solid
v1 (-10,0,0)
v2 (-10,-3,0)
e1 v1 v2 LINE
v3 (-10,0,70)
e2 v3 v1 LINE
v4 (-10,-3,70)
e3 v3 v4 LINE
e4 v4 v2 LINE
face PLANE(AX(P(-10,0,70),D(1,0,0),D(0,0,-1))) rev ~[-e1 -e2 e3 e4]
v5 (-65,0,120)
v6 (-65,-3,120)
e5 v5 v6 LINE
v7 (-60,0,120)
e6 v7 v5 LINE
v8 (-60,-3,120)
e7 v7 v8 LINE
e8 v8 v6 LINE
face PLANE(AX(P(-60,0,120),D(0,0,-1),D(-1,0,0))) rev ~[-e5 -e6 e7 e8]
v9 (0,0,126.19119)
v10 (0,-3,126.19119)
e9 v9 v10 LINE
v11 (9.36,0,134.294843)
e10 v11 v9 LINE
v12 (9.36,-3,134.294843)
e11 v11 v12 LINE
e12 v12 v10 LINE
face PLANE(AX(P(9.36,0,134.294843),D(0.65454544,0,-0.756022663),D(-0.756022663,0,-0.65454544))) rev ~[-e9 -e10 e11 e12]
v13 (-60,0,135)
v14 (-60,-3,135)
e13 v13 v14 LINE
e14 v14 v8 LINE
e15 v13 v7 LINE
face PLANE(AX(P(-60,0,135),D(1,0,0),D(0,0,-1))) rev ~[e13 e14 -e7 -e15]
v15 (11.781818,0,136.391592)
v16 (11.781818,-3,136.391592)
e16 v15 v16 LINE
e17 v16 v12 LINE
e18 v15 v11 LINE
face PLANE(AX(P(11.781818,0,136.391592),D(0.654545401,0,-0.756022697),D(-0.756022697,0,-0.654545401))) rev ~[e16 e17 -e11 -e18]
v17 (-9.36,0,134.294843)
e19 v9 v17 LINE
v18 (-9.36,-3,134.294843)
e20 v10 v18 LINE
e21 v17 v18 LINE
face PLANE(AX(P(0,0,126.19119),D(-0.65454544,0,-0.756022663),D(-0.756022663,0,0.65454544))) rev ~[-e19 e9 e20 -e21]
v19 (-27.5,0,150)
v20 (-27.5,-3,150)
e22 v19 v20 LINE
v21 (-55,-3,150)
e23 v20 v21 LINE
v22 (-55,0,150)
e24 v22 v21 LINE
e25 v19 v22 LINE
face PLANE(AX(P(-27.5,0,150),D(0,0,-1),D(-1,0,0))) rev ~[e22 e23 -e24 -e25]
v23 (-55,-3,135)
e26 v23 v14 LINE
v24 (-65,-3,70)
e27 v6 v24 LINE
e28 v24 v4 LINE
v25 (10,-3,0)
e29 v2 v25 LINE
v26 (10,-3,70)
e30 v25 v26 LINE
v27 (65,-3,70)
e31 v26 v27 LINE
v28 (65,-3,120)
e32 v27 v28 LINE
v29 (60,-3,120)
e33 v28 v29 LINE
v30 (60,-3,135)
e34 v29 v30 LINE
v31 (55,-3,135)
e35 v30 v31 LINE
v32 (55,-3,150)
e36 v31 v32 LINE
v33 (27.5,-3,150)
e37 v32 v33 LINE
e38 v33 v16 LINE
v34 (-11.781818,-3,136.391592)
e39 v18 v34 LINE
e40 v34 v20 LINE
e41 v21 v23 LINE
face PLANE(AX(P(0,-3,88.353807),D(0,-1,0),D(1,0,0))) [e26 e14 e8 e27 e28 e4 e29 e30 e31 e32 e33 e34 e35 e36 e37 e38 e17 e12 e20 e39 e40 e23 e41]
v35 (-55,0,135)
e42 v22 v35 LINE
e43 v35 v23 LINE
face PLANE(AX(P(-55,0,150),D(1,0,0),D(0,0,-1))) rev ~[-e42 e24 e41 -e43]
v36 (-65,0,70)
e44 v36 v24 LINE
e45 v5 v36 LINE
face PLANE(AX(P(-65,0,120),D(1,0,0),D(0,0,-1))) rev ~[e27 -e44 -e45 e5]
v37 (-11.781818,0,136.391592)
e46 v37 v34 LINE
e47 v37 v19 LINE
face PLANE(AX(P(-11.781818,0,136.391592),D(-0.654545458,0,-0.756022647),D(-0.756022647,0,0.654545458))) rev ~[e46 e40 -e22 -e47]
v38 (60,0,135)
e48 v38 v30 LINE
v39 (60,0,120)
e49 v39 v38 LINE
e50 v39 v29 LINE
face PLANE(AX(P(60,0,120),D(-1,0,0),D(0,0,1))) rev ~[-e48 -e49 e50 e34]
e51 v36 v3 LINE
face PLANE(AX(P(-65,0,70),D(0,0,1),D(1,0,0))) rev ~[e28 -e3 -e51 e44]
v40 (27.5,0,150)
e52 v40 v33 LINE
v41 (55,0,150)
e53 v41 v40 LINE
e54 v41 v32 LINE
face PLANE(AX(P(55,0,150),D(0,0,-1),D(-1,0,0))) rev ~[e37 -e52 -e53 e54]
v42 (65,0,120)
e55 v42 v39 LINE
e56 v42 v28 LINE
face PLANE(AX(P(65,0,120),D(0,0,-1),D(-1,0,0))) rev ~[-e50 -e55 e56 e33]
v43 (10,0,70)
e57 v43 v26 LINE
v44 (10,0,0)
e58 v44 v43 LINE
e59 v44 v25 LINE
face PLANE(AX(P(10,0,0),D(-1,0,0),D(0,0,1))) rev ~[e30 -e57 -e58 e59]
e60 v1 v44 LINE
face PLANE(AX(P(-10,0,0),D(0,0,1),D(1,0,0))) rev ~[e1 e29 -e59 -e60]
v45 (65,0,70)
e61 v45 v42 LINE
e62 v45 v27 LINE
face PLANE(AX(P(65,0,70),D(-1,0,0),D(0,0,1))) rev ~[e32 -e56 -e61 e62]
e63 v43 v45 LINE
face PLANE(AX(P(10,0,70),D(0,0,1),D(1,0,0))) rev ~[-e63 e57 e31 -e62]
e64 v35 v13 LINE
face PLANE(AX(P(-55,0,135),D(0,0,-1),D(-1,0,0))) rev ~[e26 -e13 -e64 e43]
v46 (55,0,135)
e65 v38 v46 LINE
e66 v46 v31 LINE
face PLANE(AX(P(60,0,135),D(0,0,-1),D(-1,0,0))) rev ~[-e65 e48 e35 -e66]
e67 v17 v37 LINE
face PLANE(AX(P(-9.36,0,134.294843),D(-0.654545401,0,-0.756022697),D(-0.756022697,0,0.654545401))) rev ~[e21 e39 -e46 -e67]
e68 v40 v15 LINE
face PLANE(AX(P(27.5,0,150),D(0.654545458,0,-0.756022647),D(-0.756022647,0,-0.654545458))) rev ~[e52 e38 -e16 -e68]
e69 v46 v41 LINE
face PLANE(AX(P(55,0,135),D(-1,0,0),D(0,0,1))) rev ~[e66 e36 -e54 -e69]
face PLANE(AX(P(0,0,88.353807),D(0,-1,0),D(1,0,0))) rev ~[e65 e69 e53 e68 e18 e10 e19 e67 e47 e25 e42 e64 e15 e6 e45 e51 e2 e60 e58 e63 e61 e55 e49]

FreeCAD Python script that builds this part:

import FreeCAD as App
import Part
import Sketcher

V = App.Vector


def add_polygon(sketch, points):
    """Adds a closed chain of lines whose ends are joined by coincident constraints."""
    first, n = sketch.GeometryCount, len(points)
    for a, b in zip(points, points[1:] + points[:1]):
        sketch.addGeometry(Part.LineSegment(App.Vector(*a, 0), App.Vector(*b, 0)), False)
    for i in range(n):
        sketch.addConstraint(Sketcher.Constraint("Coincident", first + i, 2, first + (i + 1) % n, 1))

doc = App.newDocument("Part")
body = doc.addObject("PartDesign::Body", "Body")

sketch1 = body.newObject("Sketcher::SketchObject", "Sketch")
sketch1.AttachmentSupport = (doc.getObject("XZ_Plane"), [""])
sketch1.MapMode = "FlatFace"
add_polygon(sketch1, [(-55, 150), (-55, 135), (-60, 135), (-60, 120), (-65, 120), (-65, 70), (-10, 70), (-10, 0), (10, 0), (10, 70), (65, 70), (65, 120), (60, 120), (60, 135), (55, 135), (55, 150), (27.5, 150), (11.781818, 136.391592), (9.36, 134.294843), (0, 126.19119), (-9.36, 134.294843), (-11.781818, 136.391592), (-27.5, 150)])
sketch1.addConstraint(Sketcher.Constraint("Vertical", 0))
sketch1.addConstraint(Sketcher.Constraint("Horizontal", 1))
sketch1.addConstraint(Sketcher.Constraint("Vertical", 2))
sketch1.addConstraint(Sketcher.Constraint("Horizontal", 3))
sketch1.addConstraint(Sketcher.Constraint("Vertical", 4))
sketch1.addConstraint(Sketcher.Constraint("Horizontal", 5))
sketch1.addConstraint(Sketcher.Constraint("Vertical", 6))
sketch1.addConstraint(Sketcher.Constraint("Horizontal", 7))
sketch1.addConstraint(Sketcher.Constraint("Vertical", 8))
sketch1.addConstraint(Sketcher.Constraint("Horizontal", 9))
sketch1.addConstraint(Sketcher.Constraint("Vertical", 10))
sketch1.addConstraint(Sketcher.Constraint("Horizontal", 11))
sketch1.addConstraint(Sketcher.Constraint("Vertical", 12))
sketch1.addConstraint(Sketcher.Constraint("Horizontal", 13))
sketch1.addConstraint(Sketcher.Constraint("Vertical", 14))
sketch1.addConstraint(Sketcher.Constraint("Horizontal", 15))
sketch1.addConstraint(Sketcher.Constraint("Horizontal", 22))
sketch1.addConstraint(Sketcher.Constraint("Symmetric", 6, 2, 7, 2, -1, 1))
sketch1.addConstraint(Sketcher.Constraint("Symmetric", 4, 2, 9, 2, -2))
sketch1.addConstraint(Sketcher.Constraint("Symmetric", 2, 2, 11, 2, -2))
sketch1.addConstraint(Sketcher.Constraint("Symmetric", 0, 2, 13, 2, -2))
sketch1.addConstraint(Sketcher.Constraint("Symmetric", 17, 2, 19, 2, -2))
sketch1.addConstraint(Sketcher.Constraint("Symmetric", 16, 2, 20, 2, -2))
sketch1.addConstraint(Sketcher.Constraint("Symmetric", 15, 2, 21, 2, -2))
sketch1.addConstraint(Sketcher.Constraint("PointOnObject", 18, 2, -2))
sketch1.addConstraint(Sketcher.Constraint("Parallel", 16, 17))
sketch1.addConstraint(Sketcher.Constraint("Parallel", 17, 18))
sketch1.addConstraint(Sketcher.Constraint("Equal", 1, 3))
sketch1.addConstraint(Sketcher.Constraint("Equal", 0, 2))
sketch1.addConstraint(Sketcher.Constraint("DistanceX", 1, 2, 1, 1, 5.0))
sketch1.addConstraint(Sketcher.Constraint("DistanceX", 5, 1, 5, 2, 55.0))
sketch1.addConstraint(Sketcher.Constraint("DistanceX", 7, 1, 7, 2, 20.0))
sketch1.addConstraint(Sketcher.Constraint("DistanceY", 0, 2, 0, 1, 15.0))
sketch1.addConstraint(Sketcher.Constraint("DistanceY", 4, 2, 4, 1, 50.0))
sketch1.addConstraint(Sketcher.Constraint("DistanceY", 6, 2, 6, 1, 70.0))
sketch1.addConstraint(Sketcher.Constraint("DistanceX", 15, 2, 15, 1, 27.5))
sketch1.addConstraint(Sketcher.Constraint("DistanceX", -1, 1, 17, 2, 9.36))
sketch1.addConstraint(Sketcher.Constraint("DistanceY", 18, 2, 16, 2, 10.200402))
sketch1.addConstraint(Sketcher.Constraint("Distance", 18, 12.380581))
pad1 = body.newObject("PartDesign::Pad", "Pad")
pad1.Profile = sketch1
pad1.Length = 3

doc.recompute()
